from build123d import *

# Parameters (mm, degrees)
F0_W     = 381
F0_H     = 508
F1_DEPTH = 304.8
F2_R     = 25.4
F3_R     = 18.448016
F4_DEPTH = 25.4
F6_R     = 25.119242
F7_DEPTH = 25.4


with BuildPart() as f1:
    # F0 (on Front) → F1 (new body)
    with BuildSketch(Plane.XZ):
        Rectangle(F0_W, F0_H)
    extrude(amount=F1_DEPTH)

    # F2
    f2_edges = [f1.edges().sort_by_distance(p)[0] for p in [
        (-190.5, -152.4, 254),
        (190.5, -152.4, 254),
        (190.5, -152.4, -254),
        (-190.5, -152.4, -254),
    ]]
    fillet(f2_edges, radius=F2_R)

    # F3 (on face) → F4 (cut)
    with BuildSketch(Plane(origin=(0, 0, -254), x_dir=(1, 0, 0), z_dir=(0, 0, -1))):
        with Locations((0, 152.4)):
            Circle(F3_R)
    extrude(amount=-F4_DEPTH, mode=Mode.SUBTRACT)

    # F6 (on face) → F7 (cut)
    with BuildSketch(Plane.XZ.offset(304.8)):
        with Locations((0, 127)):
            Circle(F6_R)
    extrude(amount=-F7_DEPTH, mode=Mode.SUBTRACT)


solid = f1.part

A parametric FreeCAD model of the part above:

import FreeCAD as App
import Part
import Sketcher
from FreeCAD import Vector
Q = App.Units.Quantity


def edges_at(feature, points):
    """Names of the edges that pass closest to the given points."""
    edges = feature.Shape.Edges
    near = lambda p: min(range(len(edges)), key=lambda i: edges[i].distToShape(Part.Vertex(*p))[0])
    return sorted({f"Edge{near(p) + 1}" for p in points})

doc = App.newDocument("Part")
body = doc.addObject("PartDesign::Body", "Body")

sketch1 = doc.addObject("Sketcher::SketchObject", "Sketch")
body.addObject(sketch1)
sketch1.AttachmentSupport = (doc.XZ_Plane, [""])
sketch1.MapMode = "FlatFace"
sketch1.addGeometry([
    Part.LineSegment(Vector(-190.5, 254, 0), Vector(-190.5, -254, 0)),
    Part.LineSegment(Vector(-190.5, -254, 0), Vector(190.5, -254, 0)),
    Part.LineSegment(Vector(190.5, -254, 0), Vector(190.5, 254, 0)),
    Part.LineSegment(Vector(190.5, 254, 0), Vector(-190.5, 254, 0)),
], False)
sketch1.addConstraint([
    Sketcher.Constraint("Coincident", 0, 2, 1, 1),
    Sketcher.Constraint("Coincident", 1, 2, 2, 1),
    Sketcher.Constraint("Coincident", 2, 2, 3, 1),
    Sketcher.Constraint("Coincident", 3, 2, 0, 1),
    Sketcher.Constraint("Vertical", 0),
    Sketcher.Constraint("Horizontal", 1),
    Sketcher.Constraint("Vertical", 2),
    Sketcher.Constraint("Horizontal", 3),
    Sketcher.Constraint("Symmetric", 0, 2, 2, 2, -1, 1),
    Sketcher.Constraint("DistanceX", 1, 1, 1, 2, Q("15 in")),
    Sketcher.Constraint("DistanceY", 0, 2, 0, 1, Q("20 in")),
])
pad1 = doc.addObject("PartDesign::Pad", "Pad")
body.addObject(pad1)
pad1.Profile = sketch1
pad1.Length = Q("12 in")
doc.recompute()

fillet = doc.addObject("PartDesign::Fillet", "Fillet")
body.addObject(fillet)
fillet.Base = (pad1, edges_at(pad1, [
    (-190.5, -152.4, 254),
    (190.5, -152.4, 254),
    (190.5, -152.4, -254),
    (-190.5, -152.4, -254),
]))
fillet.Radius = Q("1 in")

sketch2 = doc.addObject("Sketcher::SketchObject", "Sketch001")
body.addObject(sketch2)
sketch2.AttachmentSupport = (doc.XY_Plane, [""])
sketch2.MapMode = "FlatFace"
sketch2.AttachmentOffset = App.Placement(Vector(0, 0, -10 * 25.4), App.Rotation())
sketch2.addGeometry(Part.Circle(Vector(0, -152.4, 0), Vector(0, 0, 1), 18.448016), False)
sketch2.addConstraint([
    Sketcher.Constraint("PointOnObject", 0, 3, -2),
    Sketcher.Constraint("DistanceY", 0, 3, -1, 1, Q("6 in")),
    Sketcher.Constraint("Diameter", 0, 36.896032),
])
pocket1 = doc.addObject("PartDesign::Pocket", "Pocket")
body.addObject(pocket1)
pocket1.Profile = sketch2
pocket1.Length = Q("1 in")
pocket1.Reversed = True

sketch3 = doc.addObject("Sketcher::SketchObject", "Sketch002")
body.addObject(sketch3)
sketch3.AttachmentSupport = (doc.XZ_Plane, [""])
sketch3.MapMode = "FlatFace"
sketch3.AttachmentOffset = App.Placement(Vector(0, 0, 12 * 25.4), App.Rotation())
sketch3.addGeometry(Part.Circle(Vector(0, 127, 0), Vector(0, 0, 1), 25.119242), False)
sketch3.addConstraint([
    Sketcher.Constraint("PointOnObject", 0, 3, -2),
    Sketcher.Constraint("DistanceY", -1, 1, 0, 3, Q("5 in")),
    Sketcher.Constraint("Diameter", 0, 50.238484),
])
pocket2 = doc.addObject("PartDesign::Pocket", "Pocket001")
body.addObject(pocket2)
pocket2.Profile = sketch3
pocket2.Length = Q("1 in")

doc.recompute()
